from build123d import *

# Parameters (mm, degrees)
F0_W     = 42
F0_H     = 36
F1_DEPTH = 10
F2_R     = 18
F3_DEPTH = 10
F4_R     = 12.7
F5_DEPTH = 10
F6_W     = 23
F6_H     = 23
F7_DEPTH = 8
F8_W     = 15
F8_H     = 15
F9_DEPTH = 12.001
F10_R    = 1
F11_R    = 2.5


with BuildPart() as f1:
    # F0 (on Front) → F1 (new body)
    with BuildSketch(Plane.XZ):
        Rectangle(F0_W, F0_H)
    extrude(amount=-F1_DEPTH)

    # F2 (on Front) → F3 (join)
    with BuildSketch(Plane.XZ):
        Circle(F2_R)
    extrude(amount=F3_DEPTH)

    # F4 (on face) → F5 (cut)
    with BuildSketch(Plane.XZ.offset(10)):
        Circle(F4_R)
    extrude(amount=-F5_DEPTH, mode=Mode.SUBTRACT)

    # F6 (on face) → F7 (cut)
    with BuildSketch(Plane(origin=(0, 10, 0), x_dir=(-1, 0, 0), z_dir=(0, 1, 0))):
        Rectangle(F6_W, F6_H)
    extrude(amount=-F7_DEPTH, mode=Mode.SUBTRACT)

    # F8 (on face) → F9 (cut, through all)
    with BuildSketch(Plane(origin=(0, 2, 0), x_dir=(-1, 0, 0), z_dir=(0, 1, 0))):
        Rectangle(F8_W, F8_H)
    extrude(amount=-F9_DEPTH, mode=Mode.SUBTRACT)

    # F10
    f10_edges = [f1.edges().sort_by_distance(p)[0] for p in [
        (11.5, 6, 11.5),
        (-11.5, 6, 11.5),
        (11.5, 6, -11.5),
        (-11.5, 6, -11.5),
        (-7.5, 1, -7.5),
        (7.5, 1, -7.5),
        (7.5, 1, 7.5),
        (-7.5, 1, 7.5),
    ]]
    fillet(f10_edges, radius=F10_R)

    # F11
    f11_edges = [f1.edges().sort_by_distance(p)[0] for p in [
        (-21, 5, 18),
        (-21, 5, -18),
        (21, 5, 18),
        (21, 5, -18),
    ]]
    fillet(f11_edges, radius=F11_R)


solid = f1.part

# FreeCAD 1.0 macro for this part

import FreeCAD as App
import Part
import Sketcher


def edges_at(feature, points):
    """Names of the edges that pass closest to the given points."""
    edges = feature.Shape.Edges
    near = lambda p: min(range(len(edges)), key=lambda i: edges[i].distToShape(Part.Vertex(*p))[0])
    return sorted({f"Edge{near(p) + 1}" for p in points})


def add_polygon(sketch, points):
    """Adds a closed chain of lines whose ends are joined by coincident constraints."""
    first, n = sketch.GeometryCount, len(points)
    for a, b in zip(points, points[1:] + points[:1]):
        sketch.addGeometry(Part.LineSegment(App.Vector(*a, 0), App.Vector(*b, 0)), False)
    for i in range(n):
        sketch.addConstraint(Sketcher.Constraint("Coincident", first + i, 2, first + (i + 1) % n, 1))

doc = App.newDocument("Part")
params = doc.addObject("Spreadsheet::Sheet", "Params")
for row, (alias, value) in enumerate([
    ("sketch1_width", "42 mm"),
    ("sketch1_height", "36 mm"),
    ("pad1_length", "10 mm"),
    ("sketch2_diameter", "36 mm"),
    ("pad2_length", "10 mm"),
    ("sketch3_diameter", "25.4 mm"),
    ("pocket1_length", "10 mm"),
    ("sketch4_width", "23 mm"),
    ("pocket2_length", "8 mm"),
    ("sketch5_width", "15 mm"),
    ("fillet_radius", "1 mm"),
    ("fillet2_radius", "2.5 mm"),
], start=1):
    params.set(f"A{row}", alias)
    params.set(f"B{row}", "=" + value)
    params.setAlias(f"B{row}", alias)

body = doc.addObject("PartDesign::Body", "Body")

# Sketch on XZ plane
sketch1 = body.newObject("Sketcher::SketchObject", "Sketch")
sketch1.AttachmentSupport = (doc.getObject("XZ_Plane"), [""])
sketch1.MapMode = "FlatFace"
add_polygon(sketch1, [(-21, 18), (-21, -18), (21, -18), (21, 18)])  # lines 0-3
sketch1.addConstraint([
    Sketcher.Constraint("Vertical", 0),
    Sketcher.Constraint("Horizontal", 1),
    Sketcher.Constraint("Vertical", 2),
    Sketcher.Constraint("Horizontal", 3),
    Sketcher.Constraint("Symmetric", 0, 2, 2, 2, -1, 1),
    Sketcher.Constraint("DistanceX", 1, 1, 1, 2, 42.0),
    Sketcher.Constraint("DistanceY", 0, 2, 0, 1, 36.0),
])
sketch1.setExpression("Constraints[9]", "Params.sketch1_width")
sketch1.setExpression("Constraints[10]", "Params.sketch1_height")
pad1 = body.newObject("PartDesign::Pad", "Pad")
pad1.Profile = sketch1
pad1.setExpression("Length", "Params.pad1_length")
pad1.Reversed = True

# Sketch on XZ plane
sketch2 = body.newObject("Sketcher::SketchObject", "Sketch001")
sketch2.AttachmentSupport = (doc.getObject("XZ_Plane"), [""])
sketch2.MapMode = "FlatFace"
sketch2.addGeometry(Part.Circle(App.Vector(0, 0, 0), App.Vector(0, 0, 1), 18), False)
sketch2.addConstraint([
    Sketcher.Constraint("Coincident", 0, 3, -1, 1),
    Sketcher.Constraint("Diameter", 0, 36.0),
])
sketch2.setExpression("Constraints[1]", "Params.sketch2_diameter")
pad2 = body.newObject("PartDesign::Pad", "Pad001")
pad2.Profile = sketch2
pad2.setExpression("Length", "Params.pad2_length")

# Sketch on XZ plane
sketch3 = body.newObject("Sketcher::SketchObject", "Sketch002")
sketch3.AttachmentSupport = (doc.getObject("XZ_Plane"), [""])
sketch3.MapMode = "FlatFace"
sketch3.AttachmentOffset = App.Placement(App.Vector(0, 0, 10), App.Rotation())
sketch3.addGeometry(Part.Circle(App.Vector(0, 0, 0), App.Vector(0, 0, 1), 13), False)
sketch3.addConstraint([
    Sketcher.Constraint("Coincident", 0, 3, -1, 1),
    Sketcher.Constraint("Diameter", 0, 25.4),
])
sketch3.setExpression("Constraints[1]", "Params.sketch3_diameter")
pocket1 = body.newObject("PartDesign::Pocket", "Pocket")
pocket1.Profile = sketch3
pocket1.setExpression("Length", "Params.pocket1_length")

# Sketch on XZ plane
sketch4 = body.newObject("Sketcher::SketchObject", "Sketch003")
sketch4.AttachmentSupport = (doc.getObject("XZ_Plane"), [""])
sketch4.MapMode = "FlatFace"
sketch4.AttachmentOffset = App.Placement(App.Vector(0, 0, -10), App.Rotation())
add_polygon(sketch4, [(12, 12), (12, -12), (-12, -12), (-12, 12)])  # lines 0-3
sketch4.addConstraint([
    Sketcher.Constraint("Vertical", 0),
    Sketcher.Constraint("Horizontal", 1),
    Sketcher.Constraint("Vertical", 2),
    Sketcher.Constraint("Horizontal", 3),
    Sketcher.Constraint("Symmetric", 0, 2, 2, 2, -1, 1),
    Sketcher.Constraint("Equal", 3, 0),
    Sketcher.Constraint("DistanceX", 1, 2, 1, 1, 23.0),
])
sketch4.setExpression("Constraints[10]", "Params.sketch4_width")
pocket2 = body.newObject("PartDesign::Pocket", "Pocket001")
pocket2.Profile = sketch4
pocket2.setExpression("Length", "Params.pocket2_length")
pocket2.Reversed = True

# Sketch on XZ plane
sketch5 = body.newObject("Sketcher::SketchObject", "Sketch004")
sketch5.AttachmentSupport = (doc.getObject("XZ_Plane"), [""])
sketch5.MapMode = "FlatFace"
sketch5.AttachmentOffset = App.Placement(App.Vector(0, 0, -2), App.Rotation())
add_polygon(sketch5, [(8, 8), (8, -8), (-8, -8), (-8, 8)])  # lines 0-3
sketch5.addConstraint([
    Sketcher.Constraint("Vertical", 0),
    Sketcher.Constraint("Horizontal", 1),
    Sketcher.Constraint("Vertical", 2),
    Sketcher.Constraint("Horizontal", 3),
    Sketcher.Constraint("Symmetric", 0, 2, 2, 2, -1, 1),
    Sketcher.Constraint("Equal", 3, 0),
    Sketcher.Constraint("DistanceX", 1, 2, 1, 1, 15.0),
])
sketch5.setExpression("Constraints[10]", "Params.sketch5_width")
pocket3 = body.newObject("PartDesign::Pocket", "Pocket002")
pocket3.Profile = sketch5
pocket3.Type = "ThroughAll"
pocket3.Reversed = True
doc.recompute()

fillet = body.newObject("PartDesign::Fillet", "Fillet")
fillet.Base = (pocket3, edges_at(pocket3, [
    (11.5, 6, 11.5),
    (-11.5, 6, 11.5),
    (11.5, 6, -11.5),
    (-11.5, 6, -11.5),
    (-7.5, 1, -7.5),
    (7.5, 1, -7.5),
    (7.5, 1, 7.5),
    (-7.5, 1, 7.5),
]))
fillet.setExpression("Radius", "Params.fillet_radius")
doc.recompute()

fillet2 = body.newObject("PartDesign::Fillet", "Fillet001")
fillet2.Base = (fillet, edges_at(fillet, [
    (-21, 5, 18),
    (-21, 5, -18),
    (21, 5, 18),
    (21, 5, -18),
]))
fillet2.setExpression("Radius", "Params.fillet2_radius")

doc.recompute()
